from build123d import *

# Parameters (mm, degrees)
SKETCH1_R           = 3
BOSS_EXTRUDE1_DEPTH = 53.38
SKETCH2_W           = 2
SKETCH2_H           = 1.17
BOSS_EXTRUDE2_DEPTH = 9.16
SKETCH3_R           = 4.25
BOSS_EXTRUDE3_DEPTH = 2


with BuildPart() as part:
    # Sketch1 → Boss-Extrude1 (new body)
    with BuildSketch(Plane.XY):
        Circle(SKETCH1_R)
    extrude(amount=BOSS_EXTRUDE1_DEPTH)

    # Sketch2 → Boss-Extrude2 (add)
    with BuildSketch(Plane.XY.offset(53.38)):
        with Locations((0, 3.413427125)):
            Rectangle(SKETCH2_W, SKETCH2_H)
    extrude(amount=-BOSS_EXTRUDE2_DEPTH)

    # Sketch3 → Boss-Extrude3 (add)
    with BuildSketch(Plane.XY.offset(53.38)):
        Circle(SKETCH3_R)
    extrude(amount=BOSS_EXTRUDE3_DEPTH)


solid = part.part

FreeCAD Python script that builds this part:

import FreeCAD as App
import Part
import Sketcher
Q = App.Units.Quantity


def add_polygon(sketch, points):
    """Adds a closed chain of lines whose ends are joined by coincident constraints."""
    first, n = sketch.GeometryCount, len(points)
    for a, b in zip(points, points[1:] + points[:1]):
        sketch.addGeometry(Part.LineSegment(App.Vector(*a, 0), App.Vector(*b, 0)), False)
    for i in range(n):
        sketch.addConstraint(Sketcher.Constraint("Coincident", first + i, 2, first + (i + 1) % n, 1))

doc = App.newDocument("Part")
params = doc.addObject("Spreadsheet::Sheet", "Params")
for row, (alias, value) in enumerate([
    ("sketch1_diameter", "6 mm"),
    ("pad1_length", "53.38 mm"),
    ("sketch2_width", "2 mm"),
    ("sketch2_height", "1.17 mm"),
    ("pad2_length", "9.16 mm"),
    ("sketch3_diameter", "8.5 mm"),
    ("pad3_length", "2 mm"),
], start=1):
    params.set(f"A{row}", alias)
    params.set(f"B{row}", "=" + value)
    params.setAlias(f"B{row}", alias)

body = doc.addObject("PartDesign::Body", "Body")

# Sketch on XY plane
sketch1 = body.newObject("Sketcher::SketchObject", "Sketch")
sketch1.AttachmentSupport = (doc.getObject("XY_Plane"), [""])
sketch1.MapMode = "FlatFace"
sketch1.addGeometry(Part.Circle(App.Vector(0, 0, 0), App.Vector(0, 0, 1), 3), False)
sketch1.addConstraint(Sketcher.Constraint("Coincident", 0, 3, -1, 1))
sketch1.addConstraint(Sketcher.Constraint("Diameter", 0, Q("6 mm")))
sketch1.setExpression("Constraints[1]", "Params.sketch1_diameter")
pad1 = body.newObject("PartDesign::Pad", "Pad")
pad1.Profile = sketch1
pad1.setExpression("Length", "Params.pad1_length")

# Sketch on XY plane
sketch2 = body.newObject("Sketcher::SketchObject", "Sketch001")
sketch2.AttachmentSupport = (doc.getObject("XY_Plane"), [""])
sketch2.MapMode = "FlatFace"
sketch2.AttachmentOffset = App.Placement(App.Vector(0, 0, 53.38), App.Rotation())
add_polygon(sketch2, [(-1, 4), (-1, 2.8), (1, 2.8), (1, 4)])  # lines 0-3
sketch2.addConstraint(Sketcher.Constraint("Vertical", 0))
sketch2.addConstraint(Sketcher.Constraint("Horizontal", 1))
sketch2.addConstraint(Sketcher.Constraint("Vertical", 2))
sketch2.addConstraint(Sketcher.Constraint("Horizontal", 3))
sketch2.addConstraint(Sketcher.Constraint("DistanceX", 1, 1, 1, 2, Q("2 mm")))
sketch2.addConstraint(Sketcher.Constraint("DistanceX", 0, 2, -1, 1, Q("1 mm")))
sketch2.addConstraint(Sketcher.Constraint("DistanceY", 0, 2, 0, 1, Q("1.17 mm")))
sketch2.addConstraint(Sketcher.Constraint("DistanceY", -1, 1, 0, 2, Q("2.828427 mm")))
sketch2.setExpression("Constraints[8]", "Params.sketch2_width")
sketch2.setExpression("Constraints[10]", "Params.sketch2_height")
pad2 = body.newObject("PartDesign::Pad", "Pad001")
pad2.Profile = sketch2
pad2.setExpression("Length", "Params.pad2_length")
pad2.Reversed = True

# Sketch on XY plane
sketch3 = body.newObject("Sketcher::SketchObject", "Sketch002")
sketch3.AttachmentSupport = (doc.getObject("XY_Plane"), [""])
sketch3.MapMode = "FlatFace"
sketch3.AttachmentOffset = App.Placement(App.Vector(0, 0, 53.38), App.Rotation())
sketch3.addGeometry(Part.Circle(App.Vector(0, 0, 0), App.Vector(0, 0, 1), 4.2), False)
sketch3.addConstraint(Sketcher.Constraint("Coincident", 0, 3, -1, 1))
sketch3.addConstraint(Sketcher.Constraint("Diameter", 0, Q("8.5 mm")))
sketch3.setExpression("Constraints[1]", "Params.sketch3_diameter")
pad3 = body.newObject("PartDesign::Pad", "Pad002")
pad3.Profile = sketch3
pad3.setExpression("Length", "Params.pad3_length")

doc.recompute()
